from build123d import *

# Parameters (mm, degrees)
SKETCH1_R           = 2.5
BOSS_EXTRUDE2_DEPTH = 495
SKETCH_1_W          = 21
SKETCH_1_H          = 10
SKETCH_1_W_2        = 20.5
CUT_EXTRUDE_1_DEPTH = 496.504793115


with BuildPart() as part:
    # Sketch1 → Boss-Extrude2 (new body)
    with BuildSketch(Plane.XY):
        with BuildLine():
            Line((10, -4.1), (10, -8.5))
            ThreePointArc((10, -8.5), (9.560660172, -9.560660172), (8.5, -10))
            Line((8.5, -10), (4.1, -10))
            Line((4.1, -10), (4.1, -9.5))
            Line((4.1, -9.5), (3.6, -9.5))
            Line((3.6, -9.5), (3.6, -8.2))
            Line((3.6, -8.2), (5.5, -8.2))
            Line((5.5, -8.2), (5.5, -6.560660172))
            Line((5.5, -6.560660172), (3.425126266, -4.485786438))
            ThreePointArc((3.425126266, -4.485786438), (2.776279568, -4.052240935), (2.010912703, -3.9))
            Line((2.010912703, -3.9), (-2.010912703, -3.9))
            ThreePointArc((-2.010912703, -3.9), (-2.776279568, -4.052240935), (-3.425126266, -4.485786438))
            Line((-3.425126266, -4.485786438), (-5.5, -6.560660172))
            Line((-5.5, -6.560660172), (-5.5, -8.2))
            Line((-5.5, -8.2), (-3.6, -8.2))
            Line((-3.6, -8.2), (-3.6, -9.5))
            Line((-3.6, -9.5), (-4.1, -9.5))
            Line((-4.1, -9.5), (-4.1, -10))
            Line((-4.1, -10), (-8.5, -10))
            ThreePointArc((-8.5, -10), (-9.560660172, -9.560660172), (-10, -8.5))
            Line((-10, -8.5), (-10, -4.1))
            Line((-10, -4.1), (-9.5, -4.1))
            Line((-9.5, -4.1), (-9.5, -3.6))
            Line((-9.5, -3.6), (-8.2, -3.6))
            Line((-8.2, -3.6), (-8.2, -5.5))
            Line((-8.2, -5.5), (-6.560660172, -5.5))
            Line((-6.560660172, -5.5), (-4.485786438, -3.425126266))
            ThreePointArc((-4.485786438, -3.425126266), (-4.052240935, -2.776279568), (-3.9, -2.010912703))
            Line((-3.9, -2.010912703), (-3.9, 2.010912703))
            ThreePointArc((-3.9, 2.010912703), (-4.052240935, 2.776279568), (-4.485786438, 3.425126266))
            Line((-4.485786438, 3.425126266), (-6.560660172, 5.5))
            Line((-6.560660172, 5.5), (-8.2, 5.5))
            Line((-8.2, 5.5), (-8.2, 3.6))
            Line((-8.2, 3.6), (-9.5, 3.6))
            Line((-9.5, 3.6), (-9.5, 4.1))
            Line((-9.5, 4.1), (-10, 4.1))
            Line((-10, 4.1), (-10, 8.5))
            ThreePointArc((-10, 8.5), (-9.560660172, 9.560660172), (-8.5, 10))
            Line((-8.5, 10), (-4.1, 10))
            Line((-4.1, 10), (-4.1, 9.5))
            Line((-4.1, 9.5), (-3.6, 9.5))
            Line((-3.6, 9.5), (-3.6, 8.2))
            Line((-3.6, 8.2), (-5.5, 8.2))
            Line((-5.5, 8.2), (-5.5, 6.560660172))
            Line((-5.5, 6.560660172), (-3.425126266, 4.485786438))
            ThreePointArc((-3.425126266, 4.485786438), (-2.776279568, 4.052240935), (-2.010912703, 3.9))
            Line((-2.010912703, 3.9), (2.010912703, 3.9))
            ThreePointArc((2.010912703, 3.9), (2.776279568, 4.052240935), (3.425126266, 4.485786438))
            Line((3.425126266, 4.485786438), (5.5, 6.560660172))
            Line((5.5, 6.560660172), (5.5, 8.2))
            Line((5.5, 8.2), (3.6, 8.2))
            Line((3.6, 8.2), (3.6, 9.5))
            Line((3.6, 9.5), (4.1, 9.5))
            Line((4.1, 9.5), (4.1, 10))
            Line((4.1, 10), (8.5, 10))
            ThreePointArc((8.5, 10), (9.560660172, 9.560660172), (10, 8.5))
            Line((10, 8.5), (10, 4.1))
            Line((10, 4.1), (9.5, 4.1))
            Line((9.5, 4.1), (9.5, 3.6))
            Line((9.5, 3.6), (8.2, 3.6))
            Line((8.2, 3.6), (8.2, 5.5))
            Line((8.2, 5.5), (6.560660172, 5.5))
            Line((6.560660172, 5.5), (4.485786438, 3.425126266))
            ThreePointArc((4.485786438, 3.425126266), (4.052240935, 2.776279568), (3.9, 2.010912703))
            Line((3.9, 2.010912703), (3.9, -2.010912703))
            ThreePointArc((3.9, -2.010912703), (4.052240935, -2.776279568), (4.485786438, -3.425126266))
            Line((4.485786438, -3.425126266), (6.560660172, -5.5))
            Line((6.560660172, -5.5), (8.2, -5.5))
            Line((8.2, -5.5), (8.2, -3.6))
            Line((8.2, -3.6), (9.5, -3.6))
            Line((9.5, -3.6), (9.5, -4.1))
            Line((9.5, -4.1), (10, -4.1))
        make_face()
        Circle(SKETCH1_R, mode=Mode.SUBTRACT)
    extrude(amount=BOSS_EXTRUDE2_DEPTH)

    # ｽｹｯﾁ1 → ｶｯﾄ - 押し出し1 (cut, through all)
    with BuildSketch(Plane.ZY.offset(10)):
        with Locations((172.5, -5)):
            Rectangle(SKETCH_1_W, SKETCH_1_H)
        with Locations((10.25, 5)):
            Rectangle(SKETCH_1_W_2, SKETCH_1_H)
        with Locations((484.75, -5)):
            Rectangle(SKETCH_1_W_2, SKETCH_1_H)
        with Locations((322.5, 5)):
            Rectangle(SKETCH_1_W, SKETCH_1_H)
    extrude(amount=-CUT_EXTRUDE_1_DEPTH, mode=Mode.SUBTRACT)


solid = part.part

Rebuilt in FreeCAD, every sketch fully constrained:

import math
import FreeCAD as App
import Part
import Sketcher

doc = App.newDocument("Part")
body = doc.addObject("PartDesign::Body", "Body")

# Sketch on XY plane
sketch1 = doc.addObject("Sketcher::SketchObject", "Sketch")
body.addObject(sketch1)
sketch1.AttachmentSupport = (doc.XY_Plane, [""])
sketch1.MapMode = "FlatFace"
sketch1.addGeometry(Part.LineSegment(App.Vector(10, -8.5, 0), App.Vector(10, -4.1, 0)), False)
sketch1.addGeometry(Part.LineSegment(App.Vector(10, -4.1, 0), App.Vector(9.5, -4.1, 0)), False)
sketch1.addGeometry(Part.LineSegment(App.Vector(9.5, -4.1, 0), App.Vector(9.5, -3.6, 0)), False)
sketch1.addGeometry(Part.LineSegment(App.Vector(9.5, -3.6, 0), App.Vector(8.2, -3.6, 0)), False)
sketch1.addGeometry(Part.LineSegment(App.Vector(8.2, -3.6, 0), App.Vector(8.2, -5.5, 0)), False)
sketch1.addGeometry(Part.LineSegment(App.Vector(8.2, -5.5, 0), App.Vector(6.56066, -5.5, 0)), False)
sketch1.addGeometry(Part.LineSegment(App.Vector(6.56066, -5.5, 0), App.Vector(4.485786, -3.425126, 0)), False)
sketch1.addGeometry(Part.ArcOfCircle(Part.Circle(App.Vector(5.9, -2.010913, 0), App.Vector(0, 0, 1), 2), math.radians(180), math.radians(225)), False)
sketch1.addGeometry(Part.LineSegment(App.Vector(3.9, -2.010913, 0), App.Vector(3.9, 2.010913, 0)), False)
sketch1.addGeometry(Part.ArcOfCircle(Part.Circle(App.Vector(5.9, 2.010913, 0), App.Vector(0, 0, 1), 2), math.radians(135), math.radians(180)), False)
sketch1.addGeometry(Part.LineSegment(App.Vector(4.485786, 3.425126, 0), App.Vector(6.56066, 5.5, 0)), False)
sketch1.addGeometry(Part.LineSegment(App.Vector(6.56066, 5.5, 0), App.Vector(8.2, 5.5, 0)), False)
sketch1.addGeometry(Part.LineSegment(App.Vector(8.2, 5.5, 0), App.Vector(8.2, 3.6, 0)), False)
sketch1.addGeometry(Part.LineSegment(App.Vector(8.2, 3.6, 0), App.Vector(9.5, 3.6, 0)), False)
sketch1.addGeometry(Part.LineSegment(App.Vector(9.5, 3.6, 0), App.Vector(9.5, 4.1, 0)), False)
sketch1.addGeometry(Part.LineSegment(App.Vector(9.5, 4.1, 0), App.Vector(10, 4.1, 0)), False)
sketch1.addGeometry(Part.LineSegment(App.Vector(10, 4.1, 0), App.Vector(10, 8.5, 0)), False)
sketch1.addGeometry(Part.ArcOfCircle(Part.Circle(App.Vector(8.5, 8.5, 0), App.Vector(0, 0, 1), 1.5), math.radians(0), math.radians(90)), False)
sketch1.addGeometry(Part.LineSegment(App.Vector(8.5, 10, 0), App.Vector(4.1, 10, 0)), False)
sketch1.addGeometry(Part.LineSegment(App.Vector(4.1, 10, 0), App.Vector(4.1, 9.5, 0)), False)
sketch1.addGeometry(Part.LineSegment(App.Vector(4.1, 9.5, 0), App.Vector(3.6, 9.5, 0)), False)
sketch1.addGeometry(Part.LineSegment(App.Vector(3.6, 9.5, 0), App.Vector(3.6, 8.2, 0)), False)
sketch1.addGeometry(Part.LineSegment(App.Vector(3.6, 8.2, 0), App.Vector(5.5, 8.2, 0)), False)
sketch1.addGeometry(Part.LineSegment(App.Vector(5.5, 8.2, 0), App.Vector(5.5, 6.56066, 0)), False)
sketch1.addGeometry(Part.LineSegment(App.Vector(5.5, 6.56066, 0), App.Vector(3.425126, 4.485786, 0)), False)
sketch1.addGeometry(Part.ArcOfCircle(Part.Circle(App.Vector(2.010913, 5.9, 0), App.Vector(0, 0, 1), 2), math.radians(-90), math.radians(-45)), False)
sketch1.addGeometry(Part.LineSegment(App.Vector(2.010913, 3.9, 0), App.Vector(-2.010913, 3.9, 0)), False)
sketch1.addGeometry(Part.ArcOfCircle(Part.Circle(App.Vector(-2.010913, 5.9, 0), App.Vector(0, 0, 1), 2), math.radians(-135), math.radians(-90)), False)
sketch1.addGeometry(Part.LineSegment(App.Vector(-3.425126, 4.485786, 0), App.Vector(-5.5, 6.56066, 0)), False)
sketch1.addGeometry(Part.LineSegment(App.Vector(-5.5, 6.56066, 0), App.Vector(-5.5, 8.2, 0)), False)
sketch1.addGeometry(Part.LineSegment(App.Vector(-5.5, 8.2, 0), App.Vector(-3.6, 8.2, 0)), False)
sketch1.addGeometry(Part.LineSegment(App.Vector(-3.6, 8.2, 0), App.Vector(-3.6, 9.5, 0)), False)
sketch1.addGeometry(Part.LineSegment(App.Vector(-3.6, 9.5, 0), App.Vector(-4.1, 9.5, 0)), False)
sketch1.addGeometry(Part.LineSegment(App.Vector(-4.1, 9.5, 0), App.Vector(-4.1, 10, 0)), False)
sketch1.addGeometry(Part.LineSegment(App.Vector(-4.1, 10, 0), App.Vector(-8.5, 10, 0)), False)
sketch1.addGeometry(Part.ArcOfCircle(Part.Circle(App.Vector(-8.5, 8.5, 0), App.Vector(0, 0, 1), 1.5), math.radians(90), math.radians(180)), False)
sketch1.addGeometry(Part.LineSegment(App.Vector(-10, 8.5, 0), App.Vector(-10, 4.1, 0)), False)
sketch1.addGeometry(Part.LineSegment(App.Vector(-10, 4.1, 0), App.Vector(-9.5, 4.1, 0)), False)
sketch1.addGeometry(Part.LineSegment(App.Vector(-9.5, 4.1, 0), App.Vector(-9.5, 3.6, 0)), False)
sketch1.addGeometry(Part.LineSegment(App.Vector(-9.5, 3.6, 0), App.Vector(-8.2, 3.6, 0)), False)
sketch1.addGeometry(Part.LineSegment(App.Vector(-8.2, 3.6, 0), App.Vector(-8.2, 5.5, 0)), False)
sketch1.addGeometry(Part.LineSegment(App.Vector(-8.2, 5.5, 0), App.Vector(-6.56066, 5.5, 0)), False)
sketch1.addGeometry(Part.LineSegment(App.Vector(-6.56066, 5.5, 0), App.Vector(-4.485786, 3.425126, 0)), False)
sketch1.addGeometry(Part.ArcOfCircle(Part.Circle(App.Vector(-5.9, 2.010913, 0), App.Vector(0, 0, 1), 2), math.radians(0), math.radians(45)), False)
sketch1.addGeometry(Part.LineSegment(App.Vector(-3.9, 2.010913, 0), App.Vector(-3.9, -2.010913, 0)), False)
sketch1.addGeometry(Part.ArcOfCircle(Part.Circle(App.Vector(-5.9, -2.010913, 0), App.Vector(0, 0, 1), 2), math.radians(-45), math.radians(0)), False)
sketch1.addGeometry(Part.LineSegment(App.Vector(-4.485786, -3.425126, 0), App.Vector(-6.56066, -5.5, 0)), False)
sketch1.addGeometry(Part.LineSegment(App.Vector(-6.56066, -5.5, 0), App.Vector(-8.2, -5.5, 0)), False)
sketch1.addGeometry(Part.LineSegment(App.Vector(-8.2, -5.5, 0), App.Vector(-8.2, -3.6, 0)), False)
sketch1.addGeometry(Part.LineSegment(App.Vector(-8.2, -3.6, 0), App.Vector(-9.5, -3.6, 0)), False)
sketch1.addGeometry(Part.LineSegment(App.Vector(-9.5, -3.6, 0), App.Vector(-9.5, -4.1, 0)), False)
sketch1.addGeometry(Part.LineSegment(App.Vector(-9.5, -4.1, 0), App.Vector(-10, -4.1, 0)), False)
sketch1.addGeometry(Part.LineSegment(App.Vector(-10, -4.1, 0), App.Vector(-10, -8.5, 0)), False)
sketch1.addGeometry(Part.ArcOfCircle(Part.Circle(App.Vector(-8.5, -8.5, 0), App.Vector(0, 0, 1), 1.5), math.radians(180), math.radians(270)), False)
sketch1.addGeometry(Part.LineSegment(App.Vector(-8.5, -10, 0), App.Vector(-4.1, -10, 0)), False)
sketch1.addGeometry(Part.LineSegment(App.Vector(-4.1, -10, 0), App.Vector(-4.1, -9.5, 0)), False)
sketch1.addGeometry(Part.LineSegment(App.Vector(-4.1, -9.5, 0), App.Vector(-3.6, -9.5, 0)), False)
sketch1.addGeometry(Part.LineSegment(App.Vector(-3.6, -9.5, 0), App.Vector(-3.6, -8.2, 0)), False)
sketch1.addGeometry(Part.LineSegment(App.Vector(-3.6, -8.2, 0), App.Vector(-5.5, -8.2, 0)), False)
sketch1.addGeometry(Part.LineSegment(App.Vector(-5.5, -8.2, 0), App.Vector(-5.5, -6.56066, 0)), False)
sketch1.addGeometry(Part.LineSegment(App.Vector(-5.5, -6.56066, 0), App.Vector(-3.425126, -4.485786, 0)), False)
sketch1.addGeometry(Part.ArcOfCircle(Part.Circle(App.Vector(-2.010913, -5.9, 0), App.Vector(0, 0, 1), 2), math.radians(90), math.radians(135)), False)
sketch1.addGeometry(Part.LineSegment(App.Vector(-2.010913, -3.9, 0), App.Vector(2.010913, -3.9, 0)), False)
sketch1.addGeometry(Part.ArcOfCircle(Part.Circle(App.Vector(2.010913, -5.9, 0), App.Vector(0, 0, 1), 2), math.radians(45), math.radians(90)), False)
sketch1.addGeometry(Part.LineSegment(App.Vector(3.425126, -4.485786, 0), App.Vector(5.5, -6.56066, 0)), False)
sketch1.addGeometry(Part.LineSegment(App.Vector(5.5, -6.56066, 0), App.Vector(5.5, -8.2, 0)), False)
sketch1.addGeometry(Part.LineSegment(App.Vector(5.5, -8.2, 0), App.Vector(3.6, -8.2, 0)), False)
sketch1.addGeometry(Part.LineSegment(App.Vector(3.6, -8.2, 0), App.Vector(3.6, -9.5, 0)), False)
sketch1.addGeometry(Part.LineSegment(App.Vector(3.6, -9.5, 0), App.Vector(4.1, -9.5, 0)), False)
sketch1.addGeometry(Part.LineSegment(App.Vector(4.1, -9.5, 0), App.Vector(4.1, -10, 0)), False)
sketch1.addGeometry(Part.LineSegment(App.Vector(4.1, -10, 0), App.Vector(8.5, -10, 0)), False)
sketch1.addGeometry(Part.ArcOfCircle(Part.Circle(App.Vector(8.5, -8.5, 0), App.Vector(0, 0, 1), 1.5), math.radians(-90), math.radians(0)), False)
sketch1.addGeometry(Part.Circle(App.Vector(0, 0, 0), App.Vector(0, 0, 1), 2.5), False)
sketch1.addConstraint(Sketcher.Constraint("Coincident", 0, 2, 1, 1))
sketch1.addConstraint(Sketcher.Constraint("Coincident", 1, 2, 2, 1))
sketch1.addConstraint(Sketcher.Constraint("Coincident", 2, 2, 3, 1))
sketch1.addConstraint(Sketcher.Constraint("Coincident", 3, 2, 4, 1))
sketch1.addConstraint(Sketcher.Constraint("Coincident", 4, 2, 5, 1))
sketch1.addConstraint(Sketcher.Constraint("Coincident", 5, 2, 6, 1))
sketch1.addConstraint(Sketcher.Constraint("Tangent", 6, 2, 7, 2))
sketch1.addConstraint(Sketcher.Constraint("Tangent", 7, 1, 8, 1))
sketch1.addConstraint(Sketcher.Constraint("Tangent", 8, 2, 9, 2))
sketch1.addConstraint(Sketcher.Constraint("Tangent", 9, 1, 10, 1))
sketch1.addConstraint(Sketcher.Constraint("Coincident", 10, 2, 11, 1))
sketch1.addConstraint(Sketcher.Constraint("Coincident", 11, 2, 12, 1))
sketch1.addConstraint(Sketcher.Constraint("Coincident", 12, 2, 13, 1))
sketch1.addConstraint(Sketcher.Constraint("Coincident", 13, 2, 14, 1))
sketch1.addConstraint(Sketcher.Constraint("Coincident", 14, 2, 15, 1))
sketch1.addConstraint(Sketcher.Constraint("Coincident", 15, 2, 16, 1))
sketch1.addConstraint(Sketcher.Constraint("Tangent", 16, 2, 17, 1))
sketch1.addConstraint(Sketcher.Constraint("Tangent", 17, 2, 18, 1))
sketch1.addConstraint(Sketcher.Constraint("Coincident", 18, 2, 19, 1))
sketch1.addConstraint(Sketcher.Constraint("Coincident", 19, 2, 20, 1))
sketch1.addConstraint(Sketcher.Constraint("Coincident", 20, 2, 21, 1))
sketch1.addConstraint(Sketcher.Constraint("Coincident", 21, 2, 22, 1))
sketch1.addConstraint(Sketcher.Constraint("Coincident", 22, 2, 23, 1))
sketch1.addConstraint(Sketcher.Constraint("Coincident", 23, 2, 24, 1))
sketch1.addConstraint(Sketcher.Constraint("Tangent", 24, 2, 25, 2))
sketch1.addConstraint(Sketcher.Constraint("Tangent", 25, 1, 26, 1))
sketch1.addConstraint(Sketcher.Constraint("Tangent", 26, 2, 27, 2))
sketch1.addConstraint(Sketcher.Constraint("Tangent", 27, 1, 28, 1))
sketch1.addConstraint(Sketcher.Constraint("Coincident", 28, 2, 29, 1))
sketch1.addConstraint(Sketcher.Constraint("Coincident", 29, 2, 30, 1))
sketch1.addConstraint(Sketcher.Constraint("Coincident", 30, 2, 31, 1))
sketch1.addConstraint(Sketcher.Constraint("Coincident", 31, 2, 32, 1))
sketch1.addConstraint(Sketcher.Constraint("Coincident", 32, 2, 33, 1))
sketch1.addConstraint(Sketcher.Constraint("Coincident", 33, 2, 34, 1))
sketch1.addConstraint(Sketcher.Constraint("Tangent", 34, 2, 35, 1))
sketch1.addConstraint(Sketcher.Constraint("Tangent", 35, 2, 36, 1))
sketch1.addConstraint(Sketcher.Constraint("Coincident", 36, 2, 37, 1))
sketch1.addConstraint(Sketcher.Constraint("Coincident", 37, 2, 38, 1))
sketch1.addConstraint(Sketcher.Constraint("Coincident", 38, 2, 39, 1))
sketch1.addConstraint(Sketcher.Constraint("Coincident", 39, 2, 40, 1))
sketch1.addConstraint(Sketcher.Constraint("Coincident", 40, 2, 41, 1))
sketch1.addConstraint(Sketcher.Constraint("Coincident", 41, 2, 42, 1))
sketch1.addConstraint(Sketcher.Constraint("Tangent", 42, 2, 43, 2))
sketch1.addConstraint(Sketcher.Constraint("Tangent", 43, 1, 44, 1))
sketch1.addConstraint(Sketcher.Constraint("Tangent", 44, 2, 45, 2))
sketch1.addConstraint(Sketcher.Constraint("Tangent", 45, 1, 46, 1))
sketch1.addConstraint(Sketcher.Constraint("Coincident", 46, 2, 47, 1))
sketch1.addConstraint(Sketcher.Constraint("Coincident", 47, 2, 48, 1))
sketch1.addConstraint(Sketcher.Constraint("Coincident", 48, 2, 49, 1))
sketch1.addConstraint(Sketcher.Constraint("Coincident", 49, 2, 50, 1))
sketch1.addConstraint(Sketcher.Constraint("Coincident", 50, 2, 51, 1))
sketch1.addConstraint(Sketcher.Constraint("Coincident", 51, 2, 52, 1))
sketch1.addConstraint(Sketcher.Constraint("Tangent", 52, 2, 53, 1))
sketch1.addConstraint(Sketcher.Constraint("Tangent", 53, 2, 54, 1))
sketch1.addConstraint(Sketcher.Constraint("Coincident", 54, 2, 55, 1))
sketch1.addConstraint(Sketcher.Constraint("Coincident", 55, 2, 56, 1))
sketch1.addConstraint(Sketcher.Constraint("Coincident", 56, 2, 57, 1))
sketch1.addConstraint(Sketcher.Constraint("Coincident", 57, 2, 58, 1))
sketch1.addConstraint(Sketcher.Constraint("Coincident", 58, 2, 59, 1))
sketch1.addConstraint(Sketcher.Constraint("Coincident", 59, 2, 60, 1))
sketch1.addConstraint(Sketcher.Constraint("Tangent", 60, 2, 61, 2))
sketch1.addConstraint(Sketcher.Constraint("Tangent", 61, 1, 62, 1))
sketch1.addConstraint(Sketcher.Constraint("Tangent", 62, 2, 63, 2))
sketch1.addConstraint(Sketcher.Constraint("Tangent", 63, 1, 64, 1))
sketch1.addConstraint(Sketcher.Constraint("Coincident", 64, 2, 65, 1))
sketch1.addConstraint(Sketcher.Constraint("Coincident", 65, 2, 66, 1))
sketch1.addConstraint(Sketcher.Constraint("Coincident", 66, 2, 67, 1))
sketch1.addConstraint(Sketcher.Constraint("Coincident", 67, 2, 68, 1))
sketch1.addConstraint(Sketcher.Constraint("Coincident", 68, 2, 69, 1))
sketch1.addConstraint(Sketcher.Constraint("Coincident", 69, 2, 70, 1))
sketch1.addConstraint(Sketcher.Constraint("Tangent", 70, 2, 71, 1))
sketch1.addConstraint(Sketcher.Constraint("Tangent", 71, 2, 0, 1))
sketch1.addConstraint(Sketcher.Constraint("Vertical", 0))
sketch1.addConstraint(Sketcher.Constraint("Horizontal", 1))
sketch1.addConstraint(Sketcher.Constraint("Vertical", 2))
sketch1.addConstraint(Sketcher.Constraint("Horizontal", 3))
sketch1.addConstraint(Sketcher.Constraint("Vertical", 4))
sketch1.addConstraint(Sketcher.Constraint("Horizontal", 5))
sketch1.addConstraint(Sketcher.Constraint("Vertical", 8))
sketch1.addConstraint(Sketcher.Constraint("Horizontal", 11))
sketch1.addConstraint(Sketcher.Constraint("Vertical", 12))
sketch1.addConstraint(Sketcher.Constraint("Horizontal", 13))
sketch1.addConstraint(Sketcher.Constraint("Vertical", 14))
sketch1.addConstraint(Sketcher.Constraint("Horizontal", 15))
sketch1.addConstraint(Sketcher.Constraint("Vertical", 16))
sketch1.addConstraint(Sketcher.Constraint("Horizontal", 18))
sketch1.addConstraint(Sketcher.Constraint("Vertical", 19))
sketch1.addConstraint(Sketcher.Constraint("Horizontal", 20))
sketch1.addConstraint(Sketcher.Constraint("Vertical", 21))
sketch1.addConstraint(Sketcher.Constraint("Horizontal", 22))
sketch1.addConstraint(Sketcher.Constraint("Vertical", 23))
sketch1.addConstraint(Sketcher.Constraint("Horizontal", 26))
sketch1.addConstraint(Sketcher.Constraint("Vertical", 29))
sketch1.addConstraint(Sketcher.Constraint("Horizontal", 30))
sketch1.addConstraint(Sketcher.Constraint("Vertical", 31))
sketch1.addConstraint(Sketcher.Constraint("Horizontal", 32))
sketch1.addConstraint(Sketcher.Constraint("Vertical", 33))
sketch1.addConstraint(Sketcher.Constraint("Horizontal", 34))
sketch1.addConstraint(Sketcher.Constraint("Vertical", 36))
sketch1.addConstraint(Sketcher.Constraint("Horizontal", 37))
sketch1.addConstraint(Sketcher.Constraint("Vertical", 38))
sketch1.addConstraint(Sketcher.Constraint("Horizontal", 39))
sketch1.addConstraint(Sketcher.Constraint("Vertical", 40))
sketch1.addConstraint(Sketcher.Constraint("Horizontal", 41))
sketch1.addConstraint(Sketcher.Constraint("Vertical", 44))
sketch1.addConstraint(Sketcher.Constraint("Horizontal", 47))
sketch1.addConstraint(Sketcher.Constraint("Vertical", 48))
sketch1.addConstraint(Sketcher.Constraint("Horizontal", 49))
sketch1.addConstraint(Sketcher.Constraint("Vertical", 50))
sketch1.addConstraint(Sketcher.Constraint("Horizontal", 51))
sketch1.addConstraint(Sketcher.Constraint("Vertical", 52))
sketch1.addConstraint(Sketcher.Constraint("Horizontal", 54))
sketch1.addConstraint(Sketcher.Constraint("Vertical", 55))
sketch1.addConstraint(Sketcher.Constraint("Horizontal", 56))
sketch1.addConstraint(Sketcher.Constraint("Vertical", 57))
sketch1.addConstraint(Sketcher.Constraint("Horizontal", 58))
sketch1.addConstraint(Sketcher.Constraint("Vertical", 59))
sketch1.addConstraint(Sketcher.Constraint("Horizontal", 62))
sketch1.addConstraint(Sketcher.Constraint("Vertical", 65))
sketch1.addConstraint(Sketcher.Constraint("Horizontal", 66))
sketch1.addConstraint(Sketcher.Constraint("Vertical", 67))
sketch1.addConstraint(Sketcher.Constraint("Horizontal", 68))
sketch1.addConstraint(Sketcher.Constraint("Vertical", 69))
sketch1.addConstraint(Sketcher.Constraint("Horizontal", 70))
sketch1.addConstraint(Sketcher.Constraint("Coincident", 72, 3, -1, 1))
sketch1.addConstraint(Sketcher.Constraint("Equal", 7, 9))
sketch1.addConstraint(Sketcher.Constraint("Equal", 9, 25))
sketch1.addConstraint(Sketcher.Constraint("Equal", 25, 27))
sketch1.addConstraint(Sketcher.Constraint("Equal", 17, 35))
sketch1.addConstraint(Sketcher.Constraint("Equal", 27, 43))
sketch1.addConstraint(Sketcher.Constraint("Equal", 43, 45))
sketch1.addConstraint(Sketcher.Constraint("Equal", 35, 53))
sketch1.addConstraint(Sketcher.Constraint("Equal", 45, 61))
sketch1.addConstraint(Sketcher.Constraint("Equal", 61, 63))
sketch1.addConstraint(Sketcher.Constraint("Equal", 53, 71))
sketch1.addConstraint(Sketcher.Constraint("Symmetric", 7, 3, 43, 3, -1, 1))
sketch1.addConstraint(Sketcher.Constraint("Symmetric", 17, 3, 53, 3, -1, 1))
sketch1.addConstraint(Sketcher.Constraint("Symmetric", 25, 3, 61, 3, -1, 1))
sketch1.addConstraint(Sketcher.Constraint("Symmetric", 35, 3, 71, 3, -1, 1))
sketch1.addConstraint(Sketcher.Constraint("Symmetric", 1, 2, 37, 2, -1, 1))
sketch1.addConstraint(Sketcher.Constraint("Symmetric", 3, 2, 39, 2, -1, 1))
sketch1.addConstraint(Sketcher.Constraint("Symmetric", 5, 2, 41, 2, -1, 1))
sketch1.addConstraint(Sketcher.Constraint("Symmetric", 9, 1, 45, 1, -1, 1))
sketch1.addConstraint(Sketcher.Constraint("Symmetric", 11, 2, 47, 2, -1, 1))
sketch1.addConstraint(Sketcher.Constraint("Symmetric", 13, 2, 49, 2, -1, 1))
sketch1.addConstraint(Sketcher.Constraint("Symmetric", 19, 2, 55, 2, -1, 1))
sketch1.addConstraint(Sketcher.Constraint("Symmetric", 21, 2, 57, 2, -1, 1))
sketch1.addConstraint(Sketcher.Constraint("Symmetric", 23, 2, 59, 2, -1, 1))
sketch1.addConstraint(Sketcher.Constraint("Symmetric", 27, 1, 63, 1, -1, 1))
sketch1.addConstraint(Sketcher.Constraint("Symmetric", 29, 2, 65, 2, -1, 1))
sketch1.addConstraint(Sketcher.Constraint("Symmetric", 31, 2, 67, 2, -1, 1))
sketch1.addConstraint(Sketcher.Constraint("Symmetric", 17, 3, 35, 3, -2))
sketch1.addConstraint(Sketcher.Constraint("Symmetric", 24, 2, 27, 1, -2))
sketch1.addConstraint(Sketcher.Constraint("Symmetric", 22, 2, 29, 2, -2))
sketch1.addConstraint(Sketcher.Constraint("Symmetric", 20, 2, 31, 2, -2))
sketch1.addConstraint(Sketcher.Constraint("Symmetric", 14, 2, 37, 2, -2))
sketch1.addConstraint(Sketcher.Constraint("Symmetric", 12, 2, 39, 2, -2))
sketch1.addConstraint(Sketcher.Constraint("Symmetric", 10, 2, 41, 2, -2))
sketch1.addConstraint(Sketcher.Constraint("Perpendicular", 6, 10))
sketch1.addConstraint(Sketcher.Constraint("Parallel", 10, 24))
sketch1.addConstraint(Sketcher.Constraint("Perpendicular", 24, 28))
sketch1.addConstraint(Sketcher.Constraint("Horizontal", 1, 2, 50, 2))
sketch1.addConstraint(Sketcher.Constraint("Vertical", 33, 2, 54, 2))
sketch1.addConstraint(Sketcher.Constraint("Vertical", 19, 2, 68, 2))
sketch1.addConstraint(Sketcher.Constraint("Equal", 15, 20))
sketch1.addConstraint(Sketcher.Constraint("Equal", 70, 0))
sketch1.addConstraint(Sketcher.Constraint("Equal", 68, 2))
sketch1.addConstraint(Sketcher.Constraint("Equal", 66, 4))
sketch1.addConstraint(Sketcher.Constraint("Equal", 62, 8))
sketch1.addConstraint(Sketcher.Constraint("Equal", 14, 19))
sketch1.addConstraint(Sketcher.Constraint("Equal", 49, 21))
sketch1.addConstraint(Sketcher.Constraint("Equal", 47, 23))
sketch1.addConstraint(Sketcher.Constraint("Equal", 10, 24))
sketch1.addConstraint(Sketcher.Constraint("Diameter", 72, 5.0))
sketch1.addConstraint(Sketcher.Constraint("Radius", 7, 2.0))
sketch1.addConstraint(Sketcher.Constraint("Radius", 17, 1.5))
sketch1.addConstraint(Sketcher.Constraint("DistanceX", 1, 2, 1, 1, 0.5))
sketch1.addConstraint(Sketcher.Constraint("DistanceX", 3, 2, 3, 1, 1.3))
sketch1.addConstraint(Sketcher.Constraint("DistanceX", 18, 2, 18, 1, 4.4))
sketch1.addConstraint(Sketcher.Constraint("DistanceX", 22, 1, 22, 2, 1.9))
sketch1.addConstraint(Sketcher.Constraint("DistanceX", -1, 1, 0, 2, 10.0))
sketch1.addConstraint(Sketcher.Constraint("DistanceX", -1, 1, 7, 3, 5.9))
sketch1.addConstraint(Sketcher.Constraint("DistanceX", 5, 2, 5, 1, 1.63934))
pad1 = doc.addObject("PartDesign::Pad", "Pad")
body.addObject(pad1)
pad1.Profile = sketch1
pad1.Length = 495

# Sketch on YZ plane
sketch2 = doc.addObject("Sketcher::SketchObject", "Sketch001")
body.addObject(sketch2)
sketch2.AttachmentSupport = (doc.YZ_Plane, [""])
sketch2.MapMode = "FlatFace"
sketch2.AttachmentOffset = App.Placement(App.Vector(0, 0, -10), App.Rotation())
sketch2.addGeometry(Part.LineSegment(App.Vector(0, 162, 0), App.Vector(-10, 162, 0)), False)
sketch2.addGeometry(Part.LineSegment(App.Vector(-10, 162, 0), App.Vector(-10, 183, 0)), False)
sketch2.addGeometry(Part.LineSegment(App.Vector(-10, 183, 0), App.Vector(0, 183, 0)), False)
sketch2.addGeometry(Part.LineSegment(App.Vector(0, 183, 0), App.Vector(0, 162, 0)), False)
sketch2.addGeometry(Part.LineSegment(App.Vector(10, 0, 0), App.Vector(0, 0, 0)), False)
sketch2.addGeometry(Part.LineSegment(App.Vector(0, 0, 0), App.Vector(0, 20.5, 0)), False)
sketch2.addGeometry(Part.LineSegment(App.Vector(0, 20.5, 0), App.Vector(10, 20.5, 0)), False)
sketch2.addGeometry(Part.LineSegment(App.Vector(10, 20.5, 0), App.Vector(10, 0, 0)), False)
sketch2.addGeometry(Part.LineSegment(App.Vector(0, 474.5, 0), App.Vector(-10, 474.5, 0)), False)
sketch2.addGeometry(Part.LineSegment(App.Vector(-10, 474.5, 0), App.Vector(-10, 495, 0)), False)
sketch2.addGeometry(Part.LineSegment(App.Vector(-10, 495, 0), App.Vector(0, 495, 0)), False)
sketch2.addGeometry(Part.LineSegment(App.Vector(0, 495, 0), App.Vector(0, 474.5, 0)), False)
sketch2.addGeometry(Part.LineSegment(App.Vector(10, 312, 0), App.Vector(0, 312, 0)), False)
sketch2.addGeometry(Part.LineSegment(App.Vector(0, 312, 0), App.Vector(0, 333, 0)), False)
sketch2.addGeometry(Part.LineSegment(App.Vector(0, 333, 0), App.Vector(10, 333, 0)), False)
sketch2.addGeometry(Part.LineSegment(App.Vector(10, 333, 0), App.Vector(10, 312, 0)), False)
sketch2.addConstraint(Sketcher.Constraint("Coincident", 0, 2, 1, 1))
sketch2.addConstraint(Sketcher.Constraint("Coincident", 1, 2, 2, 1))
sketch2.addConstraint(Sketcher.Constraint("Coincident", 2, 2, 3, 1))
sketch2.addConstraint(Sketcher.Constraint("Coincident", 3, 2, 0, 1))
sketch2.addConstraint(Sketcher.Constraint("Coincident", 4, 2, 5, 1))
sketch2.addConstraint(Sketcher.Constraint("Coincident", 5, 2, 6, 1))
sketch2.addConstraint(Sketcher.Constraint("Coincident", 6, 2, 7, 1))
sketch2.addConstraint(Sketcher.Constraint("Coincident", 7, 2, 4, 1))
sketch2.addConstraint(Sketcher.Constraint("Coincident", 8, 2, 9, 1))
sketch2.addConstraint(Sketcher.Constraint("Coincident", 9, 2, 10, 1))
sketch2.addConstraint(Sketcher.Constraint("Coincident", 10, 2, 11, 1))
sketch2.addConstraint(Sketcher.Constraint("Coincident", 11, 2, 8, 1))
sketch2.addConstraint(Sketcher.Constraint("Coincident", 12, 2, 13, 1))
sketch2.addConstraint(Sketcher.Constraint("Coincident", 13, 2, 14, 1))
sketch2.addConstraint(Sketcher.Constraint("Coincident", 14, 2, 15, 1))
sketch2.addConstraint(Sketcher.Constraint("Coincident", 15, 2, 12, 1))
sketch2.addConstraint(Sketcher.Constraint("Horizontal", 0))
sketch2.addConstraint(Sketcher.Constraint("Vertical", 1))
sketch2.addConstraint(Sketcher.Constraint("Horizontal", 2))
sketch2.addConstraint(Sketcher.Constraint("Vertical", 3))
sketch2.addConstraint(Sketcher.Constraint("Horizontal", 4))
sketch2.addConstraint(Sketcher.Constraint("Vertical", 5))
sketch2.addConstraint(Sketcher.Constraint("Horizontal", 6))
sketch2.addConstraint(Sketcher.Constraint("Vertical", 7))
sketch2.addConstraint(Sketcher.Constraint("Horizontal", 8))
sketch2.addConstraint(Sketcher.Constraint("Vertical", 9))
sketch2.addConstraint(Sketcher.Constraint("Horizontal", 10))
sketch2.addConstraint(Sketcher.Constraint("Vertical", 11))
sketch2.addConstraint(Sketcher.Constraint("Horizontal", 12))
sketch2.addConstraint(Sketcher.Constraint("Vertical", 13))
sketch2.addConstraint(Sketcher.Constraint("Horizontal", 14))
sketch2.addConstraint(Sketcher.Constraint("Vertical", 15))
sketch2.addConstraint(Sketcher.Constraint("Coincident", 4, 2, -1, 1))
sketch2.addConstraint(Sketcher.Constraint("PointOnObject", 2, 2, -2))
sketch2.addConstraint(Sketcher.Constraint("PointOnObject", 10, 2, -2))
sketch2.addConstraint(Sketcher.Constraint("PointOnObject", 12, 2, -2))
sketch2.addConstraint(Sketcher.Constraint("Vertical", 1, 2, 8, 2))
sketch2.addConstraint(Sketcher.Constraint("Vertical", 7, 2, 14, 2))
sketch2.addConstraint(Sketcher.Constraint("Equal", 2, 4))
sketch2.addConstraint(Sketcher.Constraint("Equal", 7, 9))
sketch2.addConstraint(Sketcher.Constraint("Equal", 3, 13))
sketch2.addConstraint(Sketcher.Constraint("DistanceX", 0, 2, 0, 1, 10.0))
sketch2.addConstraint(Sketcher.Constraint("DistanceY", 1, 1, 1, 2, 21.0))
sketch2.addConstraint(Sketcher.Constraint("DistanceY", 5, 1, 5, 2, 20.5))
sketch2.addConstraint(Sketcher.Constraint("DistanceY", -1, 1, 0, 2, 162.0))
sketch2.addConstraint(Sketcher.Constraint("DistanceY", -1, 1, 9, 2, 495.0))
sketch2.addConstraint(Sketcher.Constraint("DistanceY", -1, 1, 12, 2, 312.0))
pocket1 = doc.addObject("PartDesign::Pocket", "Pocket")
body.addObject(pocket1)
pocket1.Profile = sketch2
pocket1.Type = "ThroughAll"
pocket1.Reversed = True

doc.recompute()
